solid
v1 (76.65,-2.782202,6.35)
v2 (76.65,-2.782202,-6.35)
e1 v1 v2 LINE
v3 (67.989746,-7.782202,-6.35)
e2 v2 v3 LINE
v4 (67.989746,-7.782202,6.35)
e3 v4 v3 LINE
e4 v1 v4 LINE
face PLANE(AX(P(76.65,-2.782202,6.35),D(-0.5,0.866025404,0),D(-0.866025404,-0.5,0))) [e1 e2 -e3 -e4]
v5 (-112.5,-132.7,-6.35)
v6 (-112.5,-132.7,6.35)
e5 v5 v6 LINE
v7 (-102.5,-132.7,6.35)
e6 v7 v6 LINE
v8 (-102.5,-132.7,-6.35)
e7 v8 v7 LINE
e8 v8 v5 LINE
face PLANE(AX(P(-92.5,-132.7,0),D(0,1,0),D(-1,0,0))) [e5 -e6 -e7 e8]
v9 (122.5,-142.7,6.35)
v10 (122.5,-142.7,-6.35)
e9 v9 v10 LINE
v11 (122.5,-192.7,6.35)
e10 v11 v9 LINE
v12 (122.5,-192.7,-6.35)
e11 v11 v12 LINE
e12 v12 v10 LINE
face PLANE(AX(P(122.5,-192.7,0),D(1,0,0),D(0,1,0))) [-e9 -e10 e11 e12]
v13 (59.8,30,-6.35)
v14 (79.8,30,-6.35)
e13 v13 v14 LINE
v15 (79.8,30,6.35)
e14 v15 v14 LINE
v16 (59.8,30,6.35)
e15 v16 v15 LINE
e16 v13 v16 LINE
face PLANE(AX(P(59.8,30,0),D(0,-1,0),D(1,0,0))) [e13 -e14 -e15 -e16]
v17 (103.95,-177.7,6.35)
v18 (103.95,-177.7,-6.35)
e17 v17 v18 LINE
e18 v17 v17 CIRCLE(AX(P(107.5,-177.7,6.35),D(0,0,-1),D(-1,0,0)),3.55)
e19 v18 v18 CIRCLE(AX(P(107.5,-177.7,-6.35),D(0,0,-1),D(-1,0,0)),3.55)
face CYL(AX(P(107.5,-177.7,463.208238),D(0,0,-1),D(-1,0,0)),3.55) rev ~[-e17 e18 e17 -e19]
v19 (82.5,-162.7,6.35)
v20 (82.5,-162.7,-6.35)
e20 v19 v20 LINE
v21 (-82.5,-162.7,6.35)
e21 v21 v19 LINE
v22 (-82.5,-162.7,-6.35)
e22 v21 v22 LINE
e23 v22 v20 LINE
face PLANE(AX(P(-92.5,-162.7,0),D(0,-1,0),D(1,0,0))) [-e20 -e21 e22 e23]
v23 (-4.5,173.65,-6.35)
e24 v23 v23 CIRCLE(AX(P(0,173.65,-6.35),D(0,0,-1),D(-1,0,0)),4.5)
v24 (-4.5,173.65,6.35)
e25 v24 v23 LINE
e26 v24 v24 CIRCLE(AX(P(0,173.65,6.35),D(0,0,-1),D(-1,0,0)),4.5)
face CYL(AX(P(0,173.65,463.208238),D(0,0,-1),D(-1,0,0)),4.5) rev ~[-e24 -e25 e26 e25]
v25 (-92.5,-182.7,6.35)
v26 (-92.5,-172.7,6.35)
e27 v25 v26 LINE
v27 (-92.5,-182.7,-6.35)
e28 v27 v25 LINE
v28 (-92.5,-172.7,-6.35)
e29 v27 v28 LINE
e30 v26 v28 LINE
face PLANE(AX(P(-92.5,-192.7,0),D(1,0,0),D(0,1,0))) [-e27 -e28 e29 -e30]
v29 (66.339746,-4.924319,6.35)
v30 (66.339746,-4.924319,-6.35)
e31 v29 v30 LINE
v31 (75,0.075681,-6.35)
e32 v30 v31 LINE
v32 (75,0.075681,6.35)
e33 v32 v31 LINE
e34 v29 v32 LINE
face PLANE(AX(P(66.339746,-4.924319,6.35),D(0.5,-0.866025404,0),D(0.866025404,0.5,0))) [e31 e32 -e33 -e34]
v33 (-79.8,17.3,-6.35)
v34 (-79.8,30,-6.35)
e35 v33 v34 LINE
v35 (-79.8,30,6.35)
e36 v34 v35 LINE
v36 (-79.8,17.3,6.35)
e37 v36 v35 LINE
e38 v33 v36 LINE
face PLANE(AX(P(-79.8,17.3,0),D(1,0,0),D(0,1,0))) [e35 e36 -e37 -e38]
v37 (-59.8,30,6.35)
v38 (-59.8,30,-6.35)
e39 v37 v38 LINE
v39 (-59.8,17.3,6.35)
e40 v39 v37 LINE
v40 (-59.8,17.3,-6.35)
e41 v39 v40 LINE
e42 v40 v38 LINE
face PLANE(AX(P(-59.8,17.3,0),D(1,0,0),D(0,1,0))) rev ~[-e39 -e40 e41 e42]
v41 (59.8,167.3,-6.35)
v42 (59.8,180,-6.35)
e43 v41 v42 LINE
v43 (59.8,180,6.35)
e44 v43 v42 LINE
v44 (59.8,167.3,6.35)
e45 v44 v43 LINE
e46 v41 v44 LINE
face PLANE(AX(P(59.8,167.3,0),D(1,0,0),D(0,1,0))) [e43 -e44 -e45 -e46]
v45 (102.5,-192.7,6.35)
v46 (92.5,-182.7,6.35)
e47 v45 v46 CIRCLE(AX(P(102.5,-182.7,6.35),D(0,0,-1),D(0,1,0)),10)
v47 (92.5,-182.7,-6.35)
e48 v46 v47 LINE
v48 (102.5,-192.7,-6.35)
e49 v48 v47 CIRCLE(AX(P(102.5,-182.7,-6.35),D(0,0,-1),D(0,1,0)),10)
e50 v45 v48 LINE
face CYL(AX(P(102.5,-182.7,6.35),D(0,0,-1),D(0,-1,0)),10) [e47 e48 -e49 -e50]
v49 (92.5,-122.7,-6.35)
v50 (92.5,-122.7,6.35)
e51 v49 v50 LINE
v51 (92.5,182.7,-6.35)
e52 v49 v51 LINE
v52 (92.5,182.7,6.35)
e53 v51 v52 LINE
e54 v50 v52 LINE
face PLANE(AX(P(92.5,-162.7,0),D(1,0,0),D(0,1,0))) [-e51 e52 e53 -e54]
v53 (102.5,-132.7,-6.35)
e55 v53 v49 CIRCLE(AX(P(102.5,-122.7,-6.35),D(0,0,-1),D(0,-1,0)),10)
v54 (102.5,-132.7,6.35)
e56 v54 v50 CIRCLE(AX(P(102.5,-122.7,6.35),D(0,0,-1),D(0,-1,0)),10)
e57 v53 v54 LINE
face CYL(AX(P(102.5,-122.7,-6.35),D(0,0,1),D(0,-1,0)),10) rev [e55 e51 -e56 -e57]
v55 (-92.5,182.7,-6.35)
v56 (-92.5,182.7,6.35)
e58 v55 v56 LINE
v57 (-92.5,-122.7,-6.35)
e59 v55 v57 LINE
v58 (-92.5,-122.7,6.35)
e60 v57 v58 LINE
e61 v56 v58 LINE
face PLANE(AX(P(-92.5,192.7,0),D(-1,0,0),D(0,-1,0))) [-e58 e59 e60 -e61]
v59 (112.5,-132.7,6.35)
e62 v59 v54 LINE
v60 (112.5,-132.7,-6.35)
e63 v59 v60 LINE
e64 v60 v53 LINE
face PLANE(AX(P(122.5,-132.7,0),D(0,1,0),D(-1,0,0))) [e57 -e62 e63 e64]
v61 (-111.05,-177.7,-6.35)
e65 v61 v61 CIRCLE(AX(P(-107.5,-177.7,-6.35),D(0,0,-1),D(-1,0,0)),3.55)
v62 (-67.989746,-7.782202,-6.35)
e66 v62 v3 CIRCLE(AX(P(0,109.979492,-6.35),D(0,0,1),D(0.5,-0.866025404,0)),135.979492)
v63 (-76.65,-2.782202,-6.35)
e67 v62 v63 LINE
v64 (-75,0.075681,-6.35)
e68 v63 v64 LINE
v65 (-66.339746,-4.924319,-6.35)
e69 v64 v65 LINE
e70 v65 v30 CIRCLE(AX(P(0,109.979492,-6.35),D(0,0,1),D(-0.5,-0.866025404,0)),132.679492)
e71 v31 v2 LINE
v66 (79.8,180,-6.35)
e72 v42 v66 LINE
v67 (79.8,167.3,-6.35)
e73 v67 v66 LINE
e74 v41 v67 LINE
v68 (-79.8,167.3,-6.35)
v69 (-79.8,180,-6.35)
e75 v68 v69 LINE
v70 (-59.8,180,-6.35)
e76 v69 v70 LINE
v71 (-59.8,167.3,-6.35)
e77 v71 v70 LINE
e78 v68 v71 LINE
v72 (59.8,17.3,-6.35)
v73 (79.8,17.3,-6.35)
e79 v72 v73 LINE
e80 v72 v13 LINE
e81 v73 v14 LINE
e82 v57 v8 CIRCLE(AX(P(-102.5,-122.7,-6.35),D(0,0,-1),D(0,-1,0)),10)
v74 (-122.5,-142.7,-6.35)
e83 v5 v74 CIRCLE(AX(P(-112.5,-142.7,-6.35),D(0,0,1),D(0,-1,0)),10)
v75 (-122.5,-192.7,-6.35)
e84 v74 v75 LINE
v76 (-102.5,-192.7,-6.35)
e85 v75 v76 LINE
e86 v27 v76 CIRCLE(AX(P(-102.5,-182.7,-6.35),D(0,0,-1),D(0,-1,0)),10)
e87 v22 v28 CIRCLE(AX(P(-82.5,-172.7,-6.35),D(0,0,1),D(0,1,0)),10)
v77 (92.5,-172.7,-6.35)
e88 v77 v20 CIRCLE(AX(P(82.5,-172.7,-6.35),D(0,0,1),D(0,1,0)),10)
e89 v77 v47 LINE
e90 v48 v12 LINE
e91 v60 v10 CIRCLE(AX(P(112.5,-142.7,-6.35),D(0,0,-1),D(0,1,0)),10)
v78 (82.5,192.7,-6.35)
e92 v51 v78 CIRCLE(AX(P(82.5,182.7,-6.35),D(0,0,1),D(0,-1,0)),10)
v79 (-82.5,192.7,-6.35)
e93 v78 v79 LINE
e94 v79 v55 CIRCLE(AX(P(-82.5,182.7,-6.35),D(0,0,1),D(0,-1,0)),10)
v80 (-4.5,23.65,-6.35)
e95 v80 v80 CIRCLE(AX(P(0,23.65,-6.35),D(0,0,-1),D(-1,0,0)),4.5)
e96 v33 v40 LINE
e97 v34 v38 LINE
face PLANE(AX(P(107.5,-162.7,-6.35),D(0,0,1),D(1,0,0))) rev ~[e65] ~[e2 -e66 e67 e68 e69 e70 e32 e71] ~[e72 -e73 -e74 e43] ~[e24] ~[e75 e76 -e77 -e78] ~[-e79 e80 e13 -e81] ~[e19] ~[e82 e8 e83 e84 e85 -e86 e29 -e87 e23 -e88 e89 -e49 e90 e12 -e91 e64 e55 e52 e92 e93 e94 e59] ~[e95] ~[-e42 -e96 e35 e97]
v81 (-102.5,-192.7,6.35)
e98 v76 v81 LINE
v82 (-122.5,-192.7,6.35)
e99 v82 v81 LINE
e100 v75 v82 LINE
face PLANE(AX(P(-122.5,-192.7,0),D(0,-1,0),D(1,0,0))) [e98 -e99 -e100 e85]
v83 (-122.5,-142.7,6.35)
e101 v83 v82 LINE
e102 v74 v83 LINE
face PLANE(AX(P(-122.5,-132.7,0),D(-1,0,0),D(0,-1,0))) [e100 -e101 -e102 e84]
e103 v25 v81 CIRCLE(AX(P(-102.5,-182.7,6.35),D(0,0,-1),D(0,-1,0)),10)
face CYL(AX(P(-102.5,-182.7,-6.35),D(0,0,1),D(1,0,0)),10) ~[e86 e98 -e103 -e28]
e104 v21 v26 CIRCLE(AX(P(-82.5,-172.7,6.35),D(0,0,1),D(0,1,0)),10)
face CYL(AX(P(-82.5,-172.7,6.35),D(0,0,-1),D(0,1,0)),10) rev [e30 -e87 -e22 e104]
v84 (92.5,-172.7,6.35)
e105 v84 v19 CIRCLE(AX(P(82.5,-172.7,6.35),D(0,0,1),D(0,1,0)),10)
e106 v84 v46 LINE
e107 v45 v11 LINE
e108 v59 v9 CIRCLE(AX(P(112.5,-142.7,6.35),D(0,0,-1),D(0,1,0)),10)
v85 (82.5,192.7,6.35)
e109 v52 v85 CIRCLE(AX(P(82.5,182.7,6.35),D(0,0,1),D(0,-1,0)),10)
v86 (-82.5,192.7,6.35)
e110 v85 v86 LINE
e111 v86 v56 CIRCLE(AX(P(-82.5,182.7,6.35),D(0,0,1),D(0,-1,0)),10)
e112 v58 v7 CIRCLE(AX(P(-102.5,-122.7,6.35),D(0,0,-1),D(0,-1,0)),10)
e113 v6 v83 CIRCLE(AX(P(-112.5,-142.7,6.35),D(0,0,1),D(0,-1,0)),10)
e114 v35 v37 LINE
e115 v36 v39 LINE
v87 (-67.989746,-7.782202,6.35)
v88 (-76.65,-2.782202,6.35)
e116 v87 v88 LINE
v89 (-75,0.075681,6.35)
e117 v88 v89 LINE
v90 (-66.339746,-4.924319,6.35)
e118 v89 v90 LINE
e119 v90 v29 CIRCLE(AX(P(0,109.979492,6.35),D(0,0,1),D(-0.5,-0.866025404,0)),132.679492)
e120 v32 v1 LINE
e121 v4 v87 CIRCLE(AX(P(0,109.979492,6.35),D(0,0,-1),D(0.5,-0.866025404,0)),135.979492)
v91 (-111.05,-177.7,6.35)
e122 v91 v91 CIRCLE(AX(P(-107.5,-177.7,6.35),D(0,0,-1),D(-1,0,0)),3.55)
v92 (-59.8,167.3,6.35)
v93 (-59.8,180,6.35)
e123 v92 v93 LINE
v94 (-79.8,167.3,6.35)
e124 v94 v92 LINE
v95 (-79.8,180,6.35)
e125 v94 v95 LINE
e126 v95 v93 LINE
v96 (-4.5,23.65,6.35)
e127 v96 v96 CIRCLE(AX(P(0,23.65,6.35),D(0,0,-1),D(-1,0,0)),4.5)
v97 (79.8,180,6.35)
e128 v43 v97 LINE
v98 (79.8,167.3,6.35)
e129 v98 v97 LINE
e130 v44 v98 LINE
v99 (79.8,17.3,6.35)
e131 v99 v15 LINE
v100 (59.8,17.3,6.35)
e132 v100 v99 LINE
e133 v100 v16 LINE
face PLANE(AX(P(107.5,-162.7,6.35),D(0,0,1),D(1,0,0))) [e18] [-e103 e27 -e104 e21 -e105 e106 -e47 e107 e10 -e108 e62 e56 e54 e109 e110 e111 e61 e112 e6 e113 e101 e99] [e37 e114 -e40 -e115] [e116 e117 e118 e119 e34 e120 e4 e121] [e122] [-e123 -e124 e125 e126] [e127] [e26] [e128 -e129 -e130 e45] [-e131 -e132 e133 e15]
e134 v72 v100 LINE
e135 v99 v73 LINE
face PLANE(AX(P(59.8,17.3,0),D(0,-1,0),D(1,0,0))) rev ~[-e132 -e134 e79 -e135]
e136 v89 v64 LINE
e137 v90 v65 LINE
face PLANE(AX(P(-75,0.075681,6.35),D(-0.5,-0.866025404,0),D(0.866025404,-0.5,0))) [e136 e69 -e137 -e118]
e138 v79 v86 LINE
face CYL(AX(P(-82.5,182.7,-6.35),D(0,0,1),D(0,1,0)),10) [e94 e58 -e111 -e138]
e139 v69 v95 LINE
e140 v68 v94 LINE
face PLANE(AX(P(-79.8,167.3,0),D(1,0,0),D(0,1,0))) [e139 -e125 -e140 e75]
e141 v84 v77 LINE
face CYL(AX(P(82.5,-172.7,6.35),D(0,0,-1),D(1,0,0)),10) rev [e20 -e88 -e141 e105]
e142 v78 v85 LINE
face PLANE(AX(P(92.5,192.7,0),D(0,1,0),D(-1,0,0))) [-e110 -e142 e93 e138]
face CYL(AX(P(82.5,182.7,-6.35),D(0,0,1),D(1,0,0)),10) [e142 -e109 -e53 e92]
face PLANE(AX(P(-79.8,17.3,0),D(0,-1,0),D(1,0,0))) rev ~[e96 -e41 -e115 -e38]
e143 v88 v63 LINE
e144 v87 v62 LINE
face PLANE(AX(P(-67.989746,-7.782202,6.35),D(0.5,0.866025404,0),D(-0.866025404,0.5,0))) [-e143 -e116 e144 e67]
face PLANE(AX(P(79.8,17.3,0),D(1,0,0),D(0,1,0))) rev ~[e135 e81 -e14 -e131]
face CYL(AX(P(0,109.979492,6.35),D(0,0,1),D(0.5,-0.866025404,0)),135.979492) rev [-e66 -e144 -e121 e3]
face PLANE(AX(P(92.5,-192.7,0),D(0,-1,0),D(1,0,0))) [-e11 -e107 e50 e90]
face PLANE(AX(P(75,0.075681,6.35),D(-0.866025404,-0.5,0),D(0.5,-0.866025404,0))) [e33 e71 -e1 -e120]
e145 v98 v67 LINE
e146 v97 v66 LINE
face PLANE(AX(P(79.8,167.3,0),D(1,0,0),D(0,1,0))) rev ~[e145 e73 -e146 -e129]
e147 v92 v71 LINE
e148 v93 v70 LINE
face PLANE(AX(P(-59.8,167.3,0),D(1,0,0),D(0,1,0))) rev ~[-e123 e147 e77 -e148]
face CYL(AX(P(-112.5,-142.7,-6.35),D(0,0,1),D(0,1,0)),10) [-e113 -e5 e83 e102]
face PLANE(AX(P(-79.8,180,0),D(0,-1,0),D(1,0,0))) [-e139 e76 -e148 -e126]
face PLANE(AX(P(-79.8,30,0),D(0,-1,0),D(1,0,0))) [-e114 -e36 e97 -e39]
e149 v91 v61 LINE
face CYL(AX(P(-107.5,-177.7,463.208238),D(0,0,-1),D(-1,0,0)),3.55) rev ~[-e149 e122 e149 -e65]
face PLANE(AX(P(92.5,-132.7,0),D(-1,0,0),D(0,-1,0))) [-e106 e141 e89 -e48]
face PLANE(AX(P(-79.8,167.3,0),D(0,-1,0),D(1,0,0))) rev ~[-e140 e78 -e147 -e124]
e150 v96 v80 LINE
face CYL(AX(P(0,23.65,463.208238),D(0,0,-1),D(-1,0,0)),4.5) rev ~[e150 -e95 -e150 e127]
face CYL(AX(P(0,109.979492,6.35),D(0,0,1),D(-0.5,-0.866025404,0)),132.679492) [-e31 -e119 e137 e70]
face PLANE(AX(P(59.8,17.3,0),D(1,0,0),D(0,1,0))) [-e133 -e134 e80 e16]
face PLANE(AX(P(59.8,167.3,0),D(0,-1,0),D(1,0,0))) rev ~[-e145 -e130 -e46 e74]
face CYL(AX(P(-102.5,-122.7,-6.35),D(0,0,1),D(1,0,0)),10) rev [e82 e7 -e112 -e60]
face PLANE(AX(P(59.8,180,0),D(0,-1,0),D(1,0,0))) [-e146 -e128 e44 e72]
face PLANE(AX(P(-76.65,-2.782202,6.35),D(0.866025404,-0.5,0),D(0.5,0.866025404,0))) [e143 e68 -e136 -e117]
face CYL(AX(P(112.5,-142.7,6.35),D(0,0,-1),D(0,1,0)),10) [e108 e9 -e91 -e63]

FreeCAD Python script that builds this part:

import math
import FreeCAD as App
import Part
import Sketcher
from FreeCAD import Vector
Q = App.Units.Quantity


def edges_at(feature, points):
    """Names of the edges that pass closest to the given points."""
    edges = feature.Shape.Edges
    near = lambda p: min(range(len(edges)), key=lambda i: edges[i].distToShape(Part.Vertex(*p))[0])
    return sorted({f"Edge{near(p) + 1}" for p in points})

doc = App.newDocument("Part")
body = doc.addObject("PartDesign::Body", "Body")

sketch1 = doc.addObject("Sketcher::SketchObject", "Sketch")
body.addObject(sketch1)
sketch1.AttachmentSupport = (doc.XY_Plane, [""])
sketch1.MapMode = "FlatFace"
sketch1.addGeometry([
    Part.LineSegment(Vector(92.5, 192.7, 0), Vector(-92.5, 192.7, 0)),
    Part.LineSegment(Vector(-92.5, 192.7, 0), Vector(-92.5, -132.7, 0)),
    Part.LineSegment(Vector(-92.5, -132.7, 0), Vector(-122.5, -132.7, 0)),
    Part.LineSegment(Vector(-122.5, -132.7, 0), Vector(-122.5, -192.7, 0)),
    Part.LineSegment(Vector(-122.5, -192.7, 0), Vector(-92.5, -192.7, 0)),
    Part.LineSegment(Vector(-92.5, -192.7, 0), Vector(-92.5, -162.7, 0)),
    Part.LineSegment(Vector(-92.5, -162.7, 0), Vector(92.5, -162.7, 0)),
    Part.LineSegment(Vector(92.5, -162.7, 0), Vector(92.5, -192.7, 0)),
    Part.LineSegment(Vector(92.5, -192.7, 0), Vector(122.5, -192.7, 0)),
    Part.LineSegment(Vector(122.5, -192.7, 0), Vector(122.5, -132.7, 0)),
    Part.LineSegment(Vector(122.5, -132.7, 0), Vector(92.5, -132.7, 0)),
    Part.LineSegment(Vector(92.5, -132.7, 0), Vector(92.5, 192.7, 0)),
    Part.LineSegment(Vector(-59.8, 17.3, 0), Vector(-79.8, 17.3, 0)),
    Part.LineSegment(Vector(-79.8, 17.3, 0), Vector(-79.8, 30, 0)),
    Part.LineSegment(Vector(-79.8, 30, 0), Vector(-59.8, 30, 0)),
    Part.LineSegment(Vector(-59.8, 30, 0), Vector(-59.8, 17.3, 0)),
    Part.LineSegment(Vector(79.8, 17.3, 0), Vector(59.8, 17.3, 0)),
    Part.LineSegment(Vector(59.8, 17.3, 0), Vector(59.8, 30, 0)),
    Part.LineSegment(Vector(59.8, 30, 0), Vector(79.8, 30, 0)),
    Part.LineSegment(Vector(79.8, 30, 0), Vector(79.8, 17.3, 0)),
    Part.LineSegment(Vector(-59.8, 167.3, 0), Vector(-79.8, 167.3, 0)),
    Part.LineSegment(Vector(-79.8, 167.3, 0), Vector(-79.8, 180, 0)),
    Part.LineSegment(Vector(-79.8, 180, 0), Vector(-59.8, 180, 0)),
    Part.LineSegment(Vector(-59.8, 180, 0), Vector(-59.8, 167.3, 0)),
    Part.LineSegment(Vector(79.8, 167.3, 0), Vector(59.8, 167.3, 0)),
    Part.LineSegment(Vector(59.8, 167.3, 0), Vector(59.8, 180, 0)),
    Part.LineSegment(Vector(59.8, 180, 0), Vector(79.8, 180, 0)),
    Part.LineSegment(Vector(79.8, 180, 0), Vector(79.8, 167.3, 0)),
], False)
sketch1.addConstraint([
    Sketcher.Constraint("Coincident", 0, 2, 1, 1),
    Sketcher.Constraint("Coincident", 1, 2, 2, 1),
    Sketcher.Constraint("Coincident", 2, 2, 3, 1),
    Sketcher.Constraint("Coincident", 3, 2, 4, 1),
    Sketcher.Constraint("Coincident", 4, 2, 5, 1),
    Sketcher.Constraint("Coincident", 5, 2, 6, 1),
    Sketcher.Constraint("Coincident", 6, 2, 7, 1),
    Sketcher.Constraint("Coincident", 7, 2, 8, 1),
    Sketcher.Constraint("Coincident", 8, 2, 9, 1),
    Sketcher.Constraint("Coincident", 9, 2, 10, 1),
    Sketcher.Constraint("Coincident", 10, 2, 11, 1),
    Sketcher.Constraint("Coincident", 11, 2, 0, 1),
    Sketcher.Constraint("Coincident", 12, 2, 13, 1),
    Sketcher.Constraint("Coincident", 13, 2, 14, 1),
    Sketcher.Constraint("Coincident", 14, 2, 15, 1),
    Sketcher.Constraint("Coincident", 15, 2, 12, 1),
    Sketcher.Constraint("Coincident", 16, 2, 17, 1),
    Sketcher.Constraint("Coincident", 17, 2, 18, 1),
    Sketcher.Constraint("Coincident", 18, 2, 19, 1),
    Sketcher.Constraint("Coincident", 19, 2, 16, 1),
    Sketcher.Constraint("Coincident", 20, 2, 21, 1),
    Sketcher.Constraint("Coincident", 21, 2, 22, 1),
    Sketcher.Constraint("Coincident", 22, 2, 23, 1),
    Sketcher.Constraint("Coincident", 23, 2, 20, 1),
    Sketcher.Constraint("Coincident", 24, 2, 25, 1),
    Sketcher.Constraint("Coincident", 25, 2, 26, 1),
    Sketcher.Constraint("Coincident", 26, 2, 27, 1),
    Sketcher.Constraint("Coincident", 27, 2, 24, 1),
    Sketcher.Constraint("Horizontal", 0),
    Sketcher.Constraint("Vertical", 1),
    Sketcher.Constraint("Horizontal", 2),
    Sketcher.Constraint("Vertical", 3),
    Sketcher.Constraint("Horizontal", 4),
    Sketcher.Constraint("Vertical", 5),
    Sketcher.Constraint("Horizontal", 6),
    Sketcher.Constraint("Vertical", 7),
    Sketcher.Constraint("Horizontal", 8),
    Sketcher.Constraint("Vertical", 9),
    Sketcher.Constraint("Horizontal", 10),
    Sketcher.Constraint("Vertical", 11),
    Sketcher.Constraint("Horizontal", 12),
    Sketcher.Constraint("Vertical", 13),
    Sketcher.Constraint("Horizontal", 14),
    Sketcher.Constraint("Vertical", 15),
    Sketcher.Constraint("Horizontal", 16),
    Sketcher.Constraint("Vertical", 17),
    Sketcher.Constraint("Horizontal", 18),
    Sketcher.Constraint("Vertical", 19),
    Sketcher.Constraint("Horizontal", 20),
    Sketcher.Constraint("Vertical", 21),
    Sketcher.Constraint("Horizontal", 22),
    Sketcher.Constraint("Vertical", 23),
    Sketcher.Constraint("Horizontal", 24),
    Sketcher.Constraint("Vertical", 25),
    Sketcher.Constraint("Horizontal", 26),
    Sketcher.Constraint("Vertical", 27),
    Sketcher.Constraint("Symmetric", 0, 2, 7, 2, -1, 1),
    Sketcher.Constraint("Symmetric", 4, 2, 11, 2, -1, 1),
    Sketcher.Constraint("Symmetric", 2, 2, 9, 2, -2),
    Sketcher.Constraint("Symmetric", 15, 2, 16, 2, -2),
    Sketcher.Constraint("Symmetric", 13, 2, 18, 2, -2),
    Sketcher.Constraint("Symmetric", 23, 2, 24, 2, -2),
    Sketcher.Constraint("Symmetric", 21, 2, 26, 2, -2),
    Sketcher.Constraint("Vertical", 1, 2, 4, 2),
    Sketcher.Constraint("Vertical", 13, 2, 20, 2),
    Sketcher.Constraint("Vertical", 15, 2, 22, 2),
    Sketcher.Constraint("Equal", 10, 5),
    Sketcher.Constraint("Equal", 19, 21),
    Sketcher.Constraint("DistanceX", 0, 2, 0, 1, Q("185 mm")),
    Sketcher.Constraint("DistanceX", 2, 2, 2, 1, Q("30 mm")),
    Sketcher.Constraint("DistanceX", 12, 2, 12, 1, Q("20 mm")),
    Sketcher.Constraint("DistanceY", 3, 2, 3, 1, Q("60 mm")),
    Sketcher.Constraint("DistanceY", 1, 2, 1, 1, Q("325.4 mm")),
    Sketcher.Constraint("DistanceY", 13, 1, 13, 2, Q("12.7 mm")),
    Sketcher.Constraint("DistanceY", -1, 1, 13, 2, Q("30 mm")),
    Sketcher.Constraint("DistanceY", -1, 1, 21, 2, Q("180 mm")),
    Sketcher.Constraint("DistanceX", 12, 2, -1, 1, Q("79.8 mm")),
])
pad1 = doc.addObject("PartDesign::Pad", "Pad")
body.addObject(pad1)
pad1.Profile = sketch1
pad1.Length = 12.7
pad1.Midplane = True

sketch2 = doc.addObject("Sketcher::SketchObject", "Sketch001")
body.addObject(sketch2)
sketch2.AttachmentSupport = (doc.XY_Plane, [""])
sketch2.MapMode = "FlatFace"
sketch2.AttachmentOffset = App.Placement(Vector(0, 0, 6.35), App.Rotation())
sketch2.addGeometry([
    Part.Circle(Vector(-107.5, -177.7, 0), Vector(0, 0, 1), 3.55),
    Part.Circle(Vector(107.5, -177.7, 0), Vector(0, 0, 1), 3.55),
], False)
sketch2.addConstraint([
    Sketcher.Constraint("Equal", 0, 1),
    Sketcher.Constraint("Symmetric", 0, 3, 1, 3, -2),
    Sketcher.Constraint("Diameter", 0, Q("7.1 mm")),
    Sketcher.Constraint("DistanceX", 0, 3, 1, 3, Q("215 mm")),
    Sketcher.Constraint("DistanceY", 0, 3, -1, 1, Q("177.7 mm")),
])
doc.recompute()
hole = doc.addObject("PartDesign::Hole", "Hole")
body.addObject(hole)
hole.Profile = sketch2
hole.ThreadType = "None"
hole.Diameter = 7.1
hole.DepthType = "ThroughAll"

sketch3 = doc.addObject("Sketcher::SketchObject", "Sketch002")
body.addObject(sketch3)
sketch3.AttachmentSupport = (doc.XY_Plane, [""])
sketch3.MapMode = "FlatFace"
sketch3.AttachmentOffset = App.Placement(Vector(0, 0, 6.35), App.Rotation())
sketch3.addGeometry([
    Part.LineSegment(Vector(-76.65, -2.782202, 0), Vector(-67.989746, -7.782202, 0)),
    Part.ArcOfCircle(Part.Circle(Vector(0, 109.979492, 0), Vector(0, 0, 1), 135.979492), math.radians(-120), math.radians(-60)),
    Part.LineSegment(Vector(67.989746, -7.782202, 0), Vector(76.65, -2.782202, 0)),
    Part.LineSegment(Vector(76.65, -2.782202, 0), Vector(75, 0.075681, 0)),
    Part.LineSegment(Vector(75, 0.075681, 0), Vector(66.339746, -4.924319, 0)),
    Part.ArcOfCircle(Part.Circle(Vector(0, 109.979492, 0), Vector(0, 0, 1), 132.679492), math.radians(-120), math.radians(-60)),
    Part.LineSegment(Vector(-66.339746, -4.924319, 0), Vector(-75, 0.075681, 0)),
    Part.LineSegment(Vector(-75, 0.075681, 0), Vector(-76.65, -2.782202, 0)),
], False)
sketch3.addConstraint([
    Sketcher.Constraint("Tangent", 0, 2, 1, 1),
    Sketcher.Constraint("Tangent", 1, 2, 2, 1),
    Sketcher.Constraint("Coincident", 2, 2, 3, 1),
    Sketcher.Constraint("Coincident", 3, 2, 4, 1),
    Sketcher.Constraint("Tangent", 4, 2, 5, 2),
    Sketcher.Constraint("Tangent", 5, 1, 6, 1),
    Sketcher.Constraint("Coincident", 6, 2, 7, 1),
    Sketcher.Constraint("Coincident", 7, 2, 0, 1),
    Sketcher.Constraint("Coincident", 5, 3, 1, 3),
    Sketcher.Constraint("Symmetric", 0, 2, 1, 2, -2),
    Sketcher.Constraint("Symmetric", 3, 2, 6, 2, -2),
    Sketcher.Constraint("Perpendicular", 2, 3),
    Sketcher.Constraint("Perpendicular", 3, 4),
    Sketcher.Constraint("Perpendicular", 6, 7),
    Sketcher.Constraint("Angle", 0, Q("-30 deg")),
    Sketcher.Constraint("Distance", 0, Q("10 mm")),
    Sketcher.Constraint("DistanceX", -1, 1, 3, 2, Q("75 mm")),
    Sketcher.Constraint("Distance", 3, Q("3.3 mm")),
    Sketcher.Constraint("DistanceY", -1, 1, 1, 3, Q("109.979492 mm")),
])
pocket1 = doc.addObject("PartDesign::Pocket", "Pocket")
body.addObject(pocket1)
pocket1.Profile = sketch3
pocket1.Type = "ThroughAll"

sketch4 = doc.addObject("Sketcher::SketchObject", "Sketch003")
body.addObject(sketch4)
sketch4.AttachmentSupport = (doc.XY_Plane, [""])
sketch4.MapMode = "FlatFace"
sketch4.AttachmentOffset = App.Placement(Vector(0, 0, 6.35), App.Rotation())
sketch4.addGeometry([
    Part.Circle(Vector(0, 173.65, 0), Vector(0, 0, 1), 4.5),
    Part.Circle(Vector(0, 23.65, 0), Vector(0, 0, 1), 4.5),
], False)
sketch4.addConstraint([
    Sketcher.Constraint("Equal", 0, 1),
    Sketcher.Constraint("PointOnObject", 0, 3, -2),
    Sketcher.Constraint("PointOnObject", 1, 3, -2),
    Sketcher.Constraint("Diameter", 0, Q("9 mm")),
    Sketcher.Constraint("DistanceY", 1, 3, 0, 3, Q("150 mm")),
    Sketcher.Constraint("DistanceY", -1, 1, 0, 3, Q("173.65 mm")),
])
doc.recompute()
hole2 = doc.addObject("PartDesign::Hole", "Hole001")
body.addObject(hole2)
hole2.Profile = sketch4
hole2.ThreadType = "None"
hole2.Diameter = 9
hole2.DepthType = "ThroughAll"
doc.recompute()

fillet = doc.addObject("PartDesign::Fillet", "Fillet")
body.addObject(fillet)
fillet.Base = (hole2, edges_at(hole2, [
    (-92.5, 192.7, 0),
    (92.5, 192.7, 0),
    (92.5, -132.7, 0),
    (122.5, -132.7, 0),
    (92.5, -192.7, 0),
    (92.5, -162.7, 0),
    (-92.5, -162.7, 0),
    (-92.5, -192.7, 0),
    (-122.5, -132.7, 0),
    (-92.5, -132.7, 0),
]))
fillet.Radius = 10

doc.recompute()
